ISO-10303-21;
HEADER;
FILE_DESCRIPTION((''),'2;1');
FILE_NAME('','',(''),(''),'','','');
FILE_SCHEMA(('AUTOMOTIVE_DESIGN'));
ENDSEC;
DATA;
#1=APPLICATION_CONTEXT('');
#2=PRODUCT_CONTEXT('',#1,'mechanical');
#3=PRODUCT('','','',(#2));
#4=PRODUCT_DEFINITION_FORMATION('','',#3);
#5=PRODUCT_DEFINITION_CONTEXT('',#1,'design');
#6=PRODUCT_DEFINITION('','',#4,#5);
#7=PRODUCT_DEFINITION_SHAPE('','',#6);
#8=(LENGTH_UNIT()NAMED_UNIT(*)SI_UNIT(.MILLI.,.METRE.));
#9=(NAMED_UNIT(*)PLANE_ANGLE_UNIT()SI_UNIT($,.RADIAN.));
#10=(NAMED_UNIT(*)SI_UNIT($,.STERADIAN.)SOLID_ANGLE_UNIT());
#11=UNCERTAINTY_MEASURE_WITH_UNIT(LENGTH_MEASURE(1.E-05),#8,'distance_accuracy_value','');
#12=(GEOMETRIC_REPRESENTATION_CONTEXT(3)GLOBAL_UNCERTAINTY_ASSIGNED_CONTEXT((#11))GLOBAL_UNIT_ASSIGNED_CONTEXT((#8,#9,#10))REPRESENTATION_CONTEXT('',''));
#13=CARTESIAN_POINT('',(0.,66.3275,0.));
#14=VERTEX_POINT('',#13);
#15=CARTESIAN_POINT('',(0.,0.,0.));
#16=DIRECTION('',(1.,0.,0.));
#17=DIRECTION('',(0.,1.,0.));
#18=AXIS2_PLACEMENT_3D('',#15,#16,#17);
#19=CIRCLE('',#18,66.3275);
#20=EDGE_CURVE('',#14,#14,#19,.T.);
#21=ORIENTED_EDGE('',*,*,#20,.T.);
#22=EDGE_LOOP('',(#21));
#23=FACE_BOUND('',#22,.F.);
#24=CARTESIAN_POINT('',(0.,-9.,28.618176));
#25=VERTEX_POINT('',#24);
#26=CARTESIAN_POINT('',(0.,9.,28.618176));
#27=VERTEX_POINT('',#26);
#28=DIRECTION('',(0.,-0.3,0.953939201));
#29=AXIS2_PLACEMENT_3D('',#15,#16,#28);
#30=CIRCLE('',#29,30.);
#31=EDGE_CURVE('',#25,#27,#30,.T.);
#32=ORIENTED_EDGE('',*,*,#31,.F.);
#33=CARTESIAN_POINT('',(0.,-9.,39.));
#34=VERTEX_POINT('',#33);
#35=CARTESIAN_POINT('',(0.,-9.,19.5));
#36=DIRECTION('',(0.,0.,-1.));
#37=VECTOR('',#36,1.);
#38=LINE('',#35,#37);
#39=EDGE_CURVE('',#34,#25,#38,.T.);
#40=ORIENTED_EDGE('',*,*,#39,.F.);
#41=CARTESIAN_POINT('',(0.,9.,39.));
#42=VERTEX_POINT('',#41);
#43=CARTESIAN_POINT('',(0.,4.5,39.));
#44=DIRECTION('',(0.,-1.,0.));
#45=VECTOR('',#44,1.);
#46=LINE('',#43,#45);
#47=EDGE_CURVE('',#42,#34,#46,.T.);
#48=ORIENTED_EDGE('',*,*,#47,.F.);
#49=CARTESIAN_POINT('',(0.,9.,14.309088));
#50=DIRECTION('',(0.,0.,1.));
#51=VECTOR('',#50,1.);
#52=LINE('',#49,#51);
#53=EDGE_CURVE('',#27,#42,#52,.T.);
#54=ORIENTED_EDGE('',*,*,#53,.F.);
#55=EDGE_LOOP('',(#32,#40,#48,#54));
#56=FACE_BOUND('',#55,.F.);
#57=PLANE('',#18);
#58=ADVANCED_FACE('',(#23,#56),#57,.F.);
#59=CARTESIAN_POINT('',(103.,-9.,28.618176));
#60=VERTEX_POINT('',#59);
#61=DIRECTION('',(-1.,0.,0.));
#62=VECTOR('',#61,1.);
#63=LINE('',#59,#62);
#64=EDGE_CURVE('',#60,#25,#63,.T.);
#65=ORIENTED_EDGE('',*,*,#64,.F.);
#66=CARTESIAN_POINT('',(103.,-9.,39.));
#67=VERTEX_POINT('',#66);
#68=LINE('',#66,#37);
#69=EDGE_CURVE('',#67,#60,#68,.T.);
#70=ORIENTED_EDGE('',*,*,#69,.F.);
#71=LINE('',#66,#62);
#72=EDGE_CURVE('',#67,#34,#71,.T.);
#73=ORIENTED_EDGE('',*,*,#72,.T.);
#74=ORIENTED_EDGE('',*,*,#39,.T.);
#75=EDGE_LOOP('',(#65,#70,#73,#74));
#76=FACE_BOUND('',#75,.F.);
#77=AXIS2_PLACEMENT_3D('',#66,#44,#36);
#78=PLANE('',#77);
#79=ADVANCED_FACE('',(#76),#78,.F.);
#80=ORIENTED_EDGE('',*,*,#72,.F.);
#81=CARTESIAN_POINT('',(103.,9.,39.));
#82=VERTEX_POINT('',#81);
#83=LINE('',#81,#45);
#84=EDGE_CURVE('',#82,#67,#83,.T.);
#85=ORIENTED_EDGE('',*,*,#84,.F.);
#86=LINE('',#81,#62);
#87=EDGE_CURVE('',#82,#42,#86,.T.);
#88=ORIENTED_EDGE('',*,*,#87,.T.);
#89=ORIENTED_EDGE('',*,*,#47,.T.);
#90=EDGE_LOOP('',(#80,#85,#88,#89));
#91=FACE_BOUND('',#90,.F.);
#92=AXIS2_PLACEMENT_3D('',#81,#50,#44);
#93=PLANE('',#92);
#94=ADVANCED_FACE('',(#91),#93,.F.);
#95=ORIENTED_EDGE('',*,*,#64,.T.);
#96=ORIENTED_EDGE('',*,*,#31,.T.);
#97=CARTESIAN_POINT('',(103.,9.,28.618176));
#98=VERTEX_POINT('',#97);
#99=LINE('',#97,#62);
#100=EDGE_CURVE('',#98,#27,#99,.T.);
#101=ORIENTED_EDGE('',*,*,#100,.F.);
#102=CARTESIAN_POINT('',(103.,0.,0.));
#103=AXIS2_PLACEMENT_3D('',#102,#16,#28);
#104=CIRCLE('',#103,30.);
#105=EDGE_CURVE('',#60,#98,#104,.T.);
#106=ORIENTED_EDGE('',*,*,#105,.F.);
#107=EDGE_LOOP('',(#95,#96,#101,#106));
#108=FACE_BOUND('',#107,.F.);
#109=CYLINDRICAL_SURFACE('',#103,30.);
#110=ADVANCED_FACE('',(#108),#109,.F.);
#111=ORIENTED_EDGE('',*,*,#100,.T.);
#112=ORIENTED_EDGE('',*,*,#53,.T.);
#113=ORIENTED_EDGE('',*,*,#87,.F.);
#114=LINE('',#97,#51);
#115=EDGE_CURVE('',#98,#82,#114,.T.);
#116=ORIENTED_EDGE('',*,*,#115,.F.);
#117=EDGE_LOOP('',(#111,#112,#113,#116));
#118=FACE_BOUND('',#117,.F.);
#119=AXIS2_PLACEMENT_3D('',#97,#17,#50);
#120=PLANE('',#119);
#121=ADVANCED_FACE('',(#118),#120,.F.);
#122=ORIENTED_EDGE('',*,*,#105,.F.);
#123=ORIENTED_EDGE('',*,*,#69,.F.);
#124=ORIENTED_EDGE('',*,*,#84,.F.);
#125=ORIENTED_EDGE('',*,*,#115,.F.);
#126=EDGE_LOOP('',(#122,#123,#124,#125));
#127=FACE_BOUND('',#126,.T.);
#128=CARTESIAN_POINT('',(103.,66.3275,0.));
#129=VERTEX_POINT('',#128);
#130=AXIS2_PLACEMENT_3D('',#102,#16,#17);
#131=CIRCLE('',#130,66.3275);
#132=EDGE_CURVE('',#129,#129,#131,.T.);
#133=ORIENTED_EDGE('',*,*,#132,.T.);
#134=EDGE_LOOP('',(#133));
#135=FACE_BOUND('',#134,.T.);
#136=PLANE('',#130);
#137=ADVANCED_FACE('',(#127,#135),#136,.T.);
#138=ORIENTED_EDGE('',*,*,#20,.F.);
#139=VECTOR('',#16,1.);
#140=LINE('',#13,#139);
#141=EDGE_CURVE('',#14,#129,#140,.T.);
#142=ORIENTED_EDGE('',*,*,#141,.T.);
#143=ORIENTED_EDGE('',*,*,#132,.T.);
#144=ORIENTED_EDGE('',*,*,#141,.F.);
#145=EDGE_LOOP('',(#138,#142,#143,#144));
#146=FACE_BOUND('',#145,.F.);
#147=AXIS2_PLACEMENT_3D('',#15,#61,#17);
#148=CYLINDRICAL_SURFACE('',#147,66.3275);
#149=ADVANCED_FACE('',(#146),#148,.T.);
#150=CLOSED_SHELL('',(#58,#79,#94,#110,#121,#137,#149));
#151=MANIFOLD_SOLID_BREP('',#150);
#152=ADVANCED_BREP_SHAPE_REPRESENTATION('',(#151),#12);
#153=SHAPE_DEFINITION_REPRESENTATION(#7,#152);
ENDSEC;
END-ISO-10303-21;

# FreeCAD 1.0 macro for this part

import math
import FreeCAD as App
import Part
import Sketcher

doc = App.newDocument("Part")
body = doc.addObject("PartDesign::Body", "Body")

sketch1 = body.newObject("Sketcher::SketchObject", "Sketch")
sketch1.AttachmentSupport = (doc.getObject("YZ_Plane"), [""])
sketch1.MapMode = "FlatFace"
sketch1.addGeometry(Part.Circle(App.Vector(0, 0, 0), App.Vector(0, 0, 1), 66), False)
sketch1.addConstraint(Sketcher.Constraint("Coincident", 0, 3, -1, 1))
sketch1.addConstraint(Sketcher.Constraint("Diameter", 0, 132.655))
pad1 = body.newObject("PartDesign::Pad", "Pad")
pad1.Profile = sketch1
pad1.Length = 103

sketch2 = body.newObject("Sketcher::SketchObject", "Sketch001")
sketch2.AttachmentSupport = (doc.getObject("YZ_Plane"), [""])
sketch2.MapMode = "FlatFace"
sketch2.AttachmentOffset = App.Placement(App.Vector(0, 0, 103), App.Rotation())
sketch2.addGeometry(Part.LineSegment(App.Vector(-9, 39, 0), App.Vector(-9, 29, 0)), False)
sketch2.addGeometry(Part.ArcOfCircle(Part.Circle(App.Vector(0, 0, 0), App.Vector(0, 0, 1), 30), math.radians(107), math.radians(433)), False)
sketch2.addGeometry(Part.LineSegment(App.Vector(9, 29, 0), App.Vector(9, 39, 0)), False)
sketch2.addGeometry(Part.LineSegment(App.Vector(9, 39, 0), App.Vector(-9, 39, 0)), False)
sketch2.addConstraint(Sketcher.Constraint("Coincident", 0, 2, 1, 1))
sketch2.addConstraint(Sketcher.Constraint("Coincident", 1, 2, 2, 1))
sketch2.addConstraint(Sketcher.Constraint("Coincident", 2, 2, 3, 1))
sketch2.addConstraint(Sketcher.Constraint("Coincident", 3, 2, 0, 1))
sketch2.addConstraint(Sketcher.Constraint("Vertical", 0))
sketch2.addConstraint(Sketcher.Constraint("Vertical", 2))
sketch2.addConstraint(Sketcher.Constraint("Horizontal", 3))
sketch2.addConstraint(Sketcher.Constraint("Coincident", 1, 3, -1, 1))
sketch2.addConstraint(Sketcher.Constraint("Horizontal", 0, 2, 1, 2))
sketch2.addConstraint(Sketcher.Constraint("Radius", 1, 30.0))
sketch2.addConstraint(Sketcher.Constraint("DistanceX", 3, 2, 3, 1, 18.0))
sketch2.addConstraint(Sketcher.Constraint("DistanceY", -1, 1, 2, 2, 39.0))
pocket1 = body.newObject("PartDesign::Pocket", "Pocket")
pocket1.Profile = sketch2
pocket1.Type = "ThroughAll"

doc.recompute()
